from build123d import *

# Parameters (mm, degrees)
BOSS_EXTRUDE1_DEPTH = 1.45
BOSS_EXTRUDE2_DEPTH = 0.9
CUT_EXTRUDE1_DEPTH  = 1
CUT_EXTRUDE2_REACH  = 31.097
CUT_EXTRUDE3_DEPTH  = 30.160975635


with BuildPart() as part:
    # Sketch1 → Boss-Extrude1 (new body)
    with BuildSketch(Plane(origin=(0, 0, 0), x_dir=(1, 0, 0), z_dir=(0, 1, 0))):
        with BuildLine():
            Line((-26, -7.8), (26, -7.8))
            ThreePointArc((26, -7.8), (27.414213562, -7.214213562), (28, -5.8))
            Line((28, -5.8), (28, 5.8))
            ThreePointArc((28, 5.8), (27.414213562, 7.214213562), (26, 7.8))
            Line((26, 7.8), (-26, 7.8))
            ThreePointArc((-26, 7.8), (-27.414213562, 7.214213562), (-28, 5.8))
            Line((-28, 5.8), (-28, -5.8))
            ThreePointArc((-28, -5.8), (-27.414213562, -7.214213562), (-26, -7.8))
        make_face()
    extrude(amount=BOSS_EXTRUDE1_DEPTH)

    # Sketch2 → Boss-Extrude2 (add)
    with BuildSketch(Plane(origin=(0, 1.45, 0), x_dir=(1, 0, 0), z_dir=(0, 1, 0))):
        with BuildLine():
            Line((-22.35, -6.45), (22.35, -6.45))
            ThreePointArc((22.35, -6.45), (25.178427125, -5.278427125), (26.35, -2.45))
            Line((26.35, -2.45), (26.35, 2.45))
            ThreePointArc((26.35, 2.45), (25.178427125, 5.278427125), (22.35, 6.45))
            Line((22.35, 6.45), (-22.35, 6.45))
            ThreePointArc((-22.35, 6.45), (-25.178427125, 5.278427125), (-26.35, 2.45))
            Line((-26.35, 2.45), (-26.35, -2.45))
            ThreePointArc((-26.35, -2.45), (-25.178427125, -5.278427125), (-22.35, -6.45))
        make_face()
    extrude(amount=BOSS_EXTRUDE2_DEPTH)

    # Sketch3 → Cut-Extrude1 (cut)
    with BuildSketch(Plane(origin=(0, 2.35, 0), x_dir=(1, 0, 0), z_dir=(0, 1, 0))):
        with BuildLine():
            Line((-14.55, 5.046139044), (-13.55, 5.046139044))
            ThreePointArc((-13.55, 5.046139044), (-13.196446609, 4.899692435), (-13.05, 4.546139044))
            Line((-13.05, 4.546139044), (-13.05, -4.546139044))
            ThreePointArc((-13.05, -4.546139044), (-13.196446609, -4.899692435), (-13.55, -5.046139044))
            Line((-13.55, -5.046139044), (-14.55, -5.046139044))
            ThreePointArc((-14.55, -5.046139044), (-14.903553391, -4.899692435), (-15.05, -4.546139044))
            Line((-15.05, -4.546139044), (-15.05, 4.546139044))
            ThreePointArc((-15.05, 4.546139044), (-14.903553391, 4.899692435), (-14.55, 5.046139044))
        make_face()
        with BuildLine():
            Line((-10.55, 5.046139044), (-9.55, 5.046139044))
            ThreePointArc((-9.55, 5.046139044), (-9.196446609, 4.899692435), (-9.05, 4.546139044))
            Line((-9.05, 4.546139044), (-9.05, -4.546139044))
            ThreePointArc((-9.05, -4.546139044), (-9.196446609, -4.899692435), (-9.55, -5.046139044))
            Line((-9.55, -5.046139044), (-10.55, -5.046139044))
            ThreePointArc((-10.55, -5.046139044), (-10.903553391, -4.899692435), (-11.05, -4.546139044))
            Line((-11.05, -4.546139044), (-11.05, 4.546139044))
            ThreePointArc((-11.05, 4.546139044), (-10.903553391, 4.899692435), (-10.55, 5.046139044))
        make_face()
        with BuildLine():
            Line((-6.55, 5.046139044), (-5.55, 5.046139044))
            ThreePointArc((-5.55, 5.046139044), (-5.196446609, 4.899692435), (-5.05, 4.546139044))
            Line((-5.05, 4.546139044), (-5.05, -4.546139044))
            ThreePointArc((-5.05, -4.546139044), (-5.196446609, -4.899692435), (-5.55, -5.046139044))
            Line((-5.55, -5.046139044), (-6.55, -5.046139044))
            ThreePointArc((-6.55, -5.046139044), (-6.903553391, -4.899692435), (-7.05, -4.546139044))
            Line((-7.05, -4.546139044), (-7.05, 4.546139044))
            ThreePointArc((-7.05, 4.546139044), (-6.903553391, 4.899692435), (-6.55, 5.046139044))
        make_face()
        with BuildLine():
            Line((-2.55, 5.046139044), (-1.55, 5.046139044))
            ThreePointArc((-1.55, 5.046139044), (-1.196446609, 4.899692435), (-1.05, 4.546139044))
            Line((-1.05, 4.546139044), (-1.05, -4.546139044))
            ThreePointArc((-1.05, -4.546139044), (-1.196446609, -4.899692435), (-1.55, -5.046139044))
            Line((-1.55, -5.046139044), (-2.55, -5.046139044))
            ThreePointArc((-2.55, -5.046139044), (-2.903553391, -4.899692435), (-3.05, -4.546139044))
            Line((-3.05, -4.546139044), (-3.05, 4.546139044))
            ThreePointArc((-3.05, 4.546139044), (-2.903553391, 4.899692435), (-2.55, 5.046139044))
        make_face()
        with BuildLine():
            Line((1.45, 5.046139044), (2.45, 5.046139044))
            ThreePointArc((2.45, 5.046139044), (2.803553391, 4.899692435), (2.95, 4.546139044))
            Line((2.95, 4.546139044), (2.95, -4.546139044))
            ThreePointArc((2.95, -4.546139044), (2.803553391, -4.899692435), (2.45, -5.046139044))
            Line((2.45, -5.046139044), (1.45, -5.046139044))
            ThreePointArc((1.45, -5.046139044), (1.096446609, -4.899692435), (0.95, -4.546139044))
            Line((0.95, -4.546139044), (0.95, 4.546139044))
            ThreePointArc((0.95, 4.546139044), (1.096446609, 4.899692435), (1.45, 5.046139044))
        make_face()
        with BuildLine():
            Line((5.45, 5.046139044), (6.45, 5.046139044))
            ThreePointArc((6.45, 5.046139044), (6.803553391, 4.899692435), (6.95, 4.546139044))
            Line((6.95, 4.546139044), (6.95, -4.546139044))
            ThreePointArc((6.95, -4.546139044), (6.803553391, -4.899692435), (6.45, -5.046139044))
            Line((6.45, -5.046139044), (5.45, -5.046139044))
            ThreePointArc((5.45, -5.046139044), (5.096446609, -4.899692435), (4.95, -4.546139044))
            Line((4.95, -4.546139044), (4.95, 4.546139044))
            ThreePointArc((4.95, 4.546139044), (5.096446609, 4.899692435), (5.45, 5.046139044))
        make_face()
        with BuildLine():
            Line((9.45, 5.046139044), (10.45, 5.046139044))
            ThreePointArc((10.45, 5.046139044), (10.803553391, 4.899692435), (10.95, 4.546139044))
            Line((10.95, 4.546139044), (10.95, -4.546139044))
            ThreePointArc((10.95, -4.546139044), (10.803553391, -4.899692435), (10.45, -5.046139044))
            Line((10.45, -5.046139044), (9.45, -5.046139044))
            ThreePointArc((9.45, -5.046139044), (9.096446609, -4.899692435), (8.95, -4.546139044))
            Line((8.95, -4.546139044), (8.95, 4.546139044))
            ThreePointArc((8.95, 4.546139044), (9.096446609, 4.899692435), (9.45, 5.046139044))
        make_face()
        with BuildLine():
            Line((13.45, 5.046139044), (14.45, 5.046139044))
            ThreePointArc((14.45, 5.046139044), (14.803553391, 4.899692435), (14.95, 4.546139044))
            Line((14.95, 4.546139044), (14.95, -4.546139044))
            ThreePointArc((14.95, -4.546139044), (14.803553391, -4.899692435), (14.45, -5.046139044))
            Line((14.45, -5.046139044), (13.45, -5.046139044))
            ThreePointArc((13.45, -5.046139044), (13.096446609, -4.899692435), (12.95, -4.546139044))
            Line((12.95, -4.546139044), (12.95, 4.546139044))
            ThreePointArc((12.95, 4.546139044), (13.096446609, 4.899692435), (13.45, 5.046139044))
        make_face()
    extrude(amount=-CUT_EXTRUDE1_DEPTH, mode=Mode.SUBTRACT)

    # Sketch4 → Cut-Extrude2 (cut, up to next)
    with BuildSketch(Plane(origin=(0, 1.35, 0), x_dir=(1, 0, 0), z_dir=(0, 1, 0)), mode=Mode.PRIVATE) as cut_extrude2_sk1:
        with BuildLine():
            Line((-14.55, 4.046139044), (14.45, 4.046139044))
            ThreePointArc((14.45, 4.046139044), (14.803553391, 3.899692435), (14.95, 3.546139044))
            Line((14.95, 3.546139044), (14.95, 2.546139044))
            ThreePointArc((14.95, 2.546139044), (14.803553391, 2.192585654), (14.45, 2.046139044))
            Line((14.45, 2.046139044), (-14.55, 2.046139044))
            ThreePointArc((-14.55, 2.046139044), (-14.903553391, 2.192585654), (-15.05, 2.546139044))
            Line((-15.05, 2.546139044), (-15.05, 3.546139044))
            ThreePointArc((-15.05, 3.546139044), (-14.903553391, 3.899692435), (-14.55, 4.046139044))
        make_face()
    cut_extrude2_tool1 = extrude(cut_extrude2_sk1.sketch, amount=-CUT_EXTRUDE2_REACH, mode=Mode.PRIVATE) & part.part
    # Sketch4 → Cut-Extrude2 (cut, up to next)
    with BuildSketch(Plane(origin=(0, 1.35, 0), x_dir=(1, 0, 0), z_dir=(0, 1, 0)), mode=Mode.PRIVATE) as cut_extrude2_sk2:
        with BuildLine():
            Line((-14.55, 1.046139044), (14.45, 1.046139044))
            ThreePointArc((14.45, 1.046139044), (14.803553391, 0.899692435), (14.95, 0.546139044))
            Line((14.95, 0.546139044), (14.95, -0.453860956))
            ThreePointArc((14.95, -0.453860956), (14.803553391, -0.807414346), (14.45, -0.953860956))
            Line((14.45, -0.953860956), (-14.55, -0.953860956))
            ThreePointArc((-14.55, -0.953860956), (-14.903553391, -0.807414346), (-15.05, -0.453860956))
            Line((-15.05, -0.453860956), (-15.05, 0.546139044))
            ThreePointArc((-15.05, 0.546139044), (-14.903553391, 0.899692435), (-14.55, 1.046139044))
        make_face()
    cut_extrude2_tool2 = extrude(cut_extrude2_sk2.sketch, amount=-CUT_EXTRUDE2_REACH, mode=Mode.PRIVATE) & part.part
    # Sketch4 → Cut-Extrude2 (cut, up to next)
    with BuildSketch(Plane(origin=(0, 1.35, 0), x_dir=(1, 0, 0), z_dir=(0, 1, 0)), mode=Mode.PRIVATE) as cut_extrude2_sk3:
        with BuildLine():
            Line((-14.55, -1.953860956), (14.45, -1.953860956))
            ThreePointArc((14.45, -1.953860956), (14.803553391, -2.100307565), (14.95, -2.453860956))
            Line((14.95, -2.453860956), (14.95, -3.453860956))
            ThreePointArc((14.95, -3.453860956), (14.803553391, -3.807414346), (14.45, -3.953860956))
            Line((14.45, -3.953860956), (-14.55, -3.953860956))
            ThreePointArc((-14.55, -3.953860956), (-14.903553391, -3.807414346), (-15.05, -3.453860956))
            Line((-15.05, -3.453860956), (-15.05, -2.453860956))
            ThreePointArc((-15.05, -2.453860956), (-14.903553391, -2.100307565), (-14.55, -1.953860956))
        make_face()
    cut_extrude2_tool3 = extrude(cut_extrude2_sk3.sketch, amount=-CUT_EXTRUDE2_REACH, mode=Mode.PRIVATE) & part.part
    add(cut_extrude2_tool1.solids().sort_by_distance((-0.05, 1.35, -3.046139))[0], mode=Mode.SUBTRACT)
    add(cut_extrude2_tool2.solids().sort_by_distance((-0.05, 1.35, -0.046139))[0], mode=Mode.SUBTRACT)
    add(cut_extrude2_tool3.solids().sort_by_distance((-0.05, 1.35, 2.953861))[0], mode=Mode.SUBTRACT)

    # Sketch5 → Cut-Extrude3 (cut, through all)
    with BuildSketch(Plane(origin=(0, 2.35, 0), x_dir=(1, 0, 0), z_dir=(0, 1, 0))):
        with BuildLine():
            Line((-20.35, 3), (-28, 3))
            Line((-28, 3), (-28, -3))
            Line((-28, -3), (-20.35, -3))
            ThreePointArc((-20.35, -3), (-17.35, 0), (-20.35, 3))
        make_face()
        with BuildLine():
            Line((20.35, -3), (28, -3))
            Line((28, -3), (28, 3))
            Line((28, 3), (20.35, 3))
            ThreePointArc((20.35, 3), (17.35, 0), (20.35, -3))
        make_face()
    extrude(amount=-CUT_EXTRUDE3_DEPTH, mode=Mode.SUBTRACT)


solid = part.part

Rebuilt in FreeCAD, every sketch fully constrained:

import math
import FreeCAD as App
import Part
import Sketcher

V = App.Vector

doc = App.newDocument("Part")
body = doc.addObject("PartDesign::Body", "Body")

# Sketch on XZ plane
sketch1 = doc.addObject("Sketcher::SketchObject", "Sketch")
body.addObject(sketch1)
sketch1.AttachmentSupport = (doc.XZ_Plane, [""])
sketch1.MapMode = "FlatFace"
sketch1.addGeometry(Part.LineSegment(V(-26, 7.8, 0), V(26, 7.8, 0)), False)
sketch1.addGeometry(Part.ArcOfCircle(Part.Circle(V(26, 5.8, 0), V(0, 0, 1), 2), math.radians(0), math.radians(90)), False)
sketch1.addGeometry(Part.LineSegment(V(28, 5.8, 0), V(28, -5.8, 0)), False)
sketch1.addGeometry(Part.ArcOfCircle(Part.Circle(V(26, -5.8, 0), V(0, 0, 1), 2), math.radians(-90), math.radians(0)), False)
sketch1.addGeometry(Part.LineSegment(V(26, -7.8, 0), V(-26, -7.8, 0)), False)
sketch1.addGeometry(Part.ArcOfCircle(Part.Circle(V(-26, -5.8, 0), V(0, 0, 1), 2), math.radians(-180), math.radians(-90)), False)
sketch1.addGeometry(Part.LineSegment(V(-28, -5.8, 0), V(-28, 5.8, 0)), False)
sketch1.addGeometry(Part.ArcOfCircle(Part.Circle(V(-26, 5.8, 0), V(0, 0, 1), 2), math.radians(90), math.radians(180)), False)
sketch1.addConstraint(Sketcher.Constraint("Tangent", 0, 2, 1, 2))
sketch1.addConstraint(Sketcher.Constraint("Tangent", 1, 1, 2, 1))
sketch1.addConstraint(Sketcher.Constraint("Tangent", 2, 2, 3, 2))
sketch1.addConstraint(Sketcher.Constraint("Tangent", 3, 1, 4, 1))
sketch1.addConstraint(Sketcher.Constraint("Tangent", 4, 2, 5, 2))
sketch1.addConstraint(Sketcher.Constraint("Tangent", 5, 1, 6, 1))
sketch1.addConstraint(Sketcher.Constraint("Tangent", 6, 2, 7, 2))
sketch1.addConstraint(Sketcher.Constraint("Tangent", 7, 1, 0, 1))
sketch1.addConstraint(Sketcher.Constraint("Horizontal", 0))
sketch1.addConstraint(Sketcher.Constraint("Vertical", 2))
sketch1.addConstraint(Sketcher.Constraint("Horizontal", 4))
sketch1.addConstraint(Sketcher.Constraint("Vertical", 6))
sketch1.addConstraint(Sketcher.Constraint("Equal", 1, 3))
sketch1.addConstraint(Sketcher.Constraint("Equal", 3, 5))
sketch1.addConstraint(Sketcher.Constraint("Equal", 5, 7))
sketch1.addConstraint(Sketcher.Constraint("Symmetric", 1, 3, 5, 3, -1, 1))
sketch1.addConstraint(Sketcher.Constraint("Radius", 1, 2.0))
sketch1.addConstraint(Sketcher.Constraint("DistanceX", 0, 1, 0, 2, 52.0))
sketch1.addConstraint(Sketcher.Constraint("DistanceY", 2, 2, 2, 1, 11.6))
pad1 = doc.addObject("PartDesign::Pad", "Pad")
body.addObject(pad1)
pad1.Profile = sketch1
pad1.Length = 1.45
pad1.Reversed = True

# Sketch on XZ plane
sketch2 = doc.addObject("Sketcher::SketchObject", "Sketch001")
body.addObject(sketch2)
sketch2.AttachmentSupport = (doc.XZ_Plane, [""])
sketch2.MapMode = "FlatFace"
sketch2.AttachmentOffset = App.Placement(V(0, 0, -1.45), App.Rotation())
sketch2.addGeometry(Part.LineSegment(V(-22.35, 6.45, 0), V(22.35, 6.45, 0)), False)
sketch2.addGeometry(Part.ArcOfCircle(Part.Circle(V(22.35, 2.45, 0), V(0, 0, 1), 4), math.radians(0), math.radians(90)), False)
sketch2.addGeometry(Part.LineSegment(V(26.35, 2.45, 0), V(26.35, -2.45, 0)), False)
sketch2.addGeometry(Part.ArcOfCircle(Part.Circle(V(22.35, -2.45, 0), V(0, 0, 1), 4), math.radians(-90), math.radians(0)), False)
sketch2.addGeometry(Part.LineSegment(V(22.35, -6.45, 0), V(-22.35, -6.45, 0)), False)
sketch2.addGeometry(Part.ArcOfCircle(Part.Circle(V(-22.35, -2.45, 0), V(0, 0, 1), 4), math.radians(180), math.radians(270)), False)
sketch2.addGeometry(Part.LineSegment(V(-26.35, -2.45, 0), V(-26.35, 2.45, 0)), False)
sketch2.addGeometry(Part.ArcOfCircle(Part.Circle(V(-22.35, 2.45, 0), V(0, 0, 1), 4), math.radians(90), math.radians(180)), False)
sketch2.addConstraint(Sketcher.Constraint("Tangent", 0, 2, 1, 2))
sketch2.addConstraint(Sketcher.Constraint("Tangent", 1, 1, 2, 1))
sketch2.addConstraint(Sketcher.Constraint("Tangent", 2, 2, 3, 2))
sketch2.addConstraint(Sketcher.Constraint("Tangent", 3, 1, 4, 1))
sketch2.addConstraint(Sketcher.Constraint("Tangent", 4, 2, 5, 2))
sketch2.addConstraint(Sketcher.Constraint("Tangent", 5, 1, 6, 1))
sketch2.addConstraint(Sketcher.Constraint("Tangent", 6, 2, 7, 2))
sketch2.addConstraint(Sketcher.Constraint("Tangent", 7, 1, 0, 1))
sketch2.addConstraint(Sketcher.Constraint("Horizontal", 0))
sketch2.addConstraint(Sketcher.Constraint("Vertical", 2))
sketch2.addConstraint(Sketcher.Constraint("Horizontal", 4))
sketch2.addConstraint(Sketcher.Constraint("Vertical", 6))
sketch2.addConstraint(Sketcher.Constraint("Equal", 1, 3))
sketch2.addConstraint(Sketcher.Constraint("Equal", 3, 5))
sketch2.addConstraint(Sketcher.Constraint("Equal", 5, 7))
sketch2.addConstraint(Sketcher.Constraint("Symmetric", 1, 3, 5, 3, -1, 1))
sketch2.addConstraint(Sketcher.Constraint("Radius", 1, 4.0))
sketch2.addConstraint(Sketcher.Constraint("DistanceX", 0, 1, 0, 2, 44.7))
sketch2.addConstraint(Sketcher.Constraint("DistanceY", 2, 2, 2, 1, 4.9))
pad2 = doc.addObject("PartDesign::Pad", "Pad001")
body.addObject(pad2)
pad2.Profile = sketch2
pad2.Length = 0.9
pad2.Reversed = True

# Sketch on XZ plane
sketch3 = doc.addObject("Sketcher::SketchObject", "Sketch002")
body.addObject(sketch3)
sketch3.AttachmentSupport = (doc.XZ_Plane, [""])
sketch3.MapMode = "FlatFace"
sketch3.AttachmentOffset = App.Placement(V(0, 0, -2.35), App.Rotation())
sketch3.addGeometry(Part.LineSegment(V(-13.55, -5.046139, 0), V(-14.55, -5.046139, 0)), False)
sketch3.addGeometry(Part.ArcOfCircle(Part.Circle(V(-14.55, -4.546139, 0), V(0, 0, 1), 0.5), math.radians(180), math.radians(270)), False)
sketch3.addGeometry(Part.LineSegment(V(-15.05, -4.546139, 0), V(-15.05, 4.546139, 0)), False)
sketch3.addGeometry(Part.ArcOfCircle(Part.Circle(V(-14.55, 4.546139, 0), V(0, 0, 1), 0.5), math.radians(90), math.radians(180)), False)
sketch3.addGeometry(Part.LineSegment(V(-14.55, 5.046139, 0), V(-13.55, 5.046139, 0)), False)
sketch3.addGeometry(Part.ArcOfCircle(Part.Circle(V(-13.55, 4.546139, 0), V(0, 0, 1), 0.5), math.radians(0), math.radians(90)), False)
sketch3.addGeometry(Part.LineSegment(V(-13.05, 4.546139, 0), V(-13.05, -4.546139, 0)), False)
sketch3.addGeometry(Part.ArcOfCircle(Part.Circle(V(-13.55, -4.546139, 0), V(0, 0, 1), 0.5), math.radians(-90), math.radians(0)), False)
sketch3.addGeometry(Part.LineSegment(V(-9.55, -5.046139, 0), V(-10.55, -5.046139, 0)), False)
sketch3.addGeometry(Part.ArcOfCircle(Part.Circle(V(-10.55, -4.546139, 0), V(0, 0, 1), 0.5), math.radians(180), math.radians(270)), False)
sketch3.addGeometry(Part.LineSegment(V(-11.05, -4.546139, 0), V(-11.05, 4.546139, 0)), False)
sketch3.addGeometry(Part.ArcOfCircle(Part.Circle(V(-10.55, 4.546139, 0), V(0, 0, 1), 0.5), math.radians(90), math.radians(180)), False)
sketch3.addGeometry(Part.LineSegment(V(-10.55, 5.046139, 0), V(-9.55, 5.046139, 0)), False)
sketch3.addGeometry(Part.ArcOfCircle(Part.Circle(V(-9.55, 4.546139, 0), V(0, 0, 1), 0.5), math.radians(0), math.radians(90)), False)
sketch3.addGeometry(Part.LineSegment(V(-9.05, 4.546139, 0), V(-9.05, -4.546139, 0)), False)
sketch3.addGeometry(Part.ArcOfCircle(Part.Circle(V(-9.55, -4.546139, 0), V(0, 0, 1), 0.5), math.radians(-90), math.radians(0)), False)
sketch3.addGeometry(Part.LineSegment(V(-5.55, -5.046139, 0), V(-6.55, -5.046139, 0)), False)
sketch3.addGeometry(Part.ArcOfCircle(Part.Circle(V(-6.55, -4.546139, 0), V(0, 0, 1), 0.5), math.radians(180), math.radians(270)), False)
sketch3.addGeometry(Part.LineSegment(V(-7.05, -4.546139, 0), V(-7.05, 4.546139, 0)), False)
sketch3.addGeometry(Part.ArcOfCircle(Part.Circle(V(-6.55, 4.546139, 0), V(0, 0, 1), 0.5), math.radians(90), math.radians(180)), False)
sketch3.addGeometry(Part.LineSegment(V(-6.55, 5.046139, 0), V(-5.55, 5.046139, 0)), False)
sketch3.addGeometry(Part.ArcOfCircle(Part.Circle(V(-5.55, 4.546139, 0), V(0, 0, 1), 0.5), math.radians(0), math.radians(90)), False)
sketch3.addGeometry(Part.LineSegment(V(-5.05, 4.546139, 0), V(-5.05, -4.546139, 0)), False)
sketch3.addGeometry(Part.ArcOfCircle(Part.Circle(V(-5.55, -4.546139, 0), V(0, 0, 1), 0.5), math.radians(-90), math.radians(0)), False)
sketch3.addGeometry(Part.LineSegment(V(-1.55, -5.046139, 0), V(-2.55, -5.046139, 0)), False)
sketch3.addGeometry(Part.ArcOfCircle(Part.Circle(V(-2.55, -4.546139, 0), V(0, 0, 1), 0.5), math.radians(180), math.radians(270)), False)
sketch3.addGeometry(Part.LineSegment(V(-3.05, -4.546139, 0), V(-3.05, 4.546139, 0)), False)
sketch3.addGeometry(Part.ArcOfCircle(Part.Circle(V(-2.55, 4.546139, 0), V(0, 0, 1), 0.5), math.radians(90), math.radians(180)), False)
sketch3.addGeometry(Part.LineSegment(V(-2.55, 5.046139, 0), V(-1.55, 5.046139, 0)), False)
sketch3.addGeometry(Part.ArcOfCircle(Part.Circle(V(-1.55, 4.546139, 0), V(0, 0, 1), 0.5), math.radians(0), math.radians(90)), False)
sketch3.addGeometry(Part.LineSegment(V(-1.05, 4.546139, 0), V(-1.05, -4.546139, 0)), False)
sketch3.addGeometry(Part.ArcOfCircle(Part.Circle(V(-1.55, -4.546139, 0), V(0, 0, 1), 0.5), math.radians(-90), math.radians(0)), False)
sketch3.addGeometry(Part.LineSegment(V(2.45, -5.046139, 0), V(1.45, -5.046139, 0)), False)
sketch3.addGeometry(Part.ArcOfCircle(Part.Circle(V(1.45, -4.546139, 0), V(0, 0, 1), 0.5), math.radians(180), math.radians(270)), False)
sketch3.addGeometry(Part.LineSegment(V(0.95, -4.546139, 0), V(0.95, 4.546139, 0)), False)
sketch3.addGeometry(Part.ArcOfCircle(Part.Circle(V(1.45, 4.546139, 0), V(0, 0, 1), 0.5), math.radians(90), math.radians(180)), False)
sketch3.addGeometry(Part.LineSegment(V(1.45, 5.046139, 0), V(2.45, 5.046139, 0)), False)
sketch3.addGeometry(Part.ArcOfCircle(Part.Circle(V(2.45, 4.546139, 0), V(0, 0, 1), 0.5), math.radians(0), math.radians(90)), False)
sketch3.addGeometry(Part.LineSegment(V(2.95, 4.546139, 0), V(2.95, -4.546139, 0)), False)
sketch3.addGeometry(Part.ArcOfCircle(Part.Circle(V(2.45, -4.546139, 0), V(0, 0, 1), 0.5), math.radians(-90), math.radians(0)), False)
sketch3.addGeometry(Part.LineSegment(V(6.45, -5.046139, 0), V(5.45, -5.046139, 0)), False)
sketch3.addGeometry(Part.ArcOfCircle(Part.Circle(V(5.45, -4.546139, 0), V(0, 0, 1), 0.5), math.radians(180), math.radians(270)), False)
sketch3.addGeometry(Part.LineSegment(V(4.95, -4.546139, 0), V(4.95, 4.546139, 0)), False)
sketch3.addGeometry(Part.ArcOfCircle(Part.Circle(V(5.45, 4.546139, 0), V(0, 0, 1), 0.5), math.radians(90), math.radians(180)), False)
sketch3.addGeometry(Part.LineSegment(V(5.45, 5.046139, 0), V(6.45, 5.046139, 0)), False)
sketch3.addGeometry(Part.ArcOfCircle(Part.Circle(V(6.45, 4.546139, 0), V(0, 0, 1), 0.5), math.radians(0), math.radians(90)), False)
sketch3.addGeometry(Part.LineSegment(V(6.95, 4.546139, 0), V(6.95, -4.546139, 0)), False)
sketch3.addGeometry(Part.ArcOfCircle(Part.Circle(V(6.45, -4.546139, 0), V(0, 0, 1), 0.5), math.radians(-90), math.radians(0)), False)
sketch3.addGeometry(Part.LineSegment(V(10.45, -5.046139, 0), V(9.45, -5.046139, 0)), False)
sketch3.addGeometry(Part.ArcOfCircle(Part.Circle(V(9.45, -4.546139, 0), V(0, 0, 1), 0.5), math.radians(180), math.radians(270)), False)
sketch3.addGeometry(Part.LineSegment(V(8.95, -4.546139, 0), V(8.95, 4.546139, 0)), False)
sketch3.addGeometry(Part.ArcOfCircle(Part.Circle(V(9.45, 4.546139, 0), V(0, 0, 1), 0.5), math.radians(90), math.radians(180)), False)
sketch3.addGeometry(Part.LineSegment(V(9.45, 5.046139, 0), V(10.45, 5.046139, 0)), False)
sketch3.addGeometry(Part.ArcOfCircle(Part.Circle(V(10.45, 4.546139, 0), V(0, 0, 1), 0.5), math.radians(0), math.radians(90)), False)
sketch3.addGeometry(Part.LineSegment(V(10.95, 4.546139, 0), V(10.95, -4.546139, 0)), False)
sketch3.addGeometry(Part.ArcOfCircle(Part.Circle(V(10.45, -4.546139, 0), V(0, 0, 1), 0.5), math.radians(-90), math.radians(0)), False)
sketch3.addGeometry(Part.LineSegment(V(14.45, -5.046139, 0), V(13.45, -5.046139, 0)), False)
sketch3.addGeometry(Part.ArcOfCircle(Part.Circle(V(13.45, -4.546139, 0), V(0, 0, 1), 0.5), math.radians(180), math.radians(270)), False)
sketch3.addGeometry(Part.LineSegment(V(12.95, -4.546139, 0), V(12.95, 4.546139, 0)), False)
sketch3.addGeometry(Part.ArcOfCircle(Part.Circle(V(13.45, 4.546139, 0), V(0, 0, 1), 0.5), math.radians(90), math.radians(180)), False)
sketch3.addGeometry(Part.LineSegment(V(13.45, 5.046139, 0), V(14.45, 5.046139, 0)), False)
sketch3.addGeometry(Part.ArcOfCircle(Part.Circle(V(14.45, 4.546139, 0), V(0, 0, 1), 0.5), math.radians(0), math.radians(90)), False)
sketch3.addGeometry(Part.LineSegment(V(14.95, 4.546139, 0), V(14.95, -4.546139, 0)), False)
sketch3.addGeometry(Part.ArcOfCircle(Part.Circle(V(14.45, -4.546139, 0), V(0, 0, 1), 0.5), math.radians(-90), math.radians(0)), False)
sketch3.addConstraint(Sketcher.Constraint("Tangent", 0, 2, 1, 2))
sketch3.addConstraint(Sketcher.Constraint("Tangent", 1, 1, 2, 1))
sketch3.addConstraint(Sketcher.Constraint("Tangent", 2, 2, 3, 2))
sketch3.addConstraint(Sketcher.Constraint("Tangent", 3, 1, 4, 1))
sketch3.addConstraint(Sketcher.Constraint("Tangent", 4, 2, 5, 2))
sketch3.addConstraint(Sketcher.Constraint("Tangent", 5, 1, 6, 1))
sketch3.addConstraint(Sketcher.Constraint("Tangent", 6, 2, 7, 2))
sketch3.addConstraint(Sketcher.Constraint("Tangent", 7, 1, 0, 1))
sketch3.addConstraint(Sketcher.Constraint("Tangent", 8, 2, 9, 2))
sketch3.addConstraint(Sketcher.Constraint("Tangent", 9, 1, 10, 1))
sketch3.addConstraint(Sketcher.Constraint("Tangent", 10, 2, 11, 2))
sketch3.addConstraint(Sketcher.Constraint("Tangent", 11, 1, 12, 1))
sketch3.addConstraint(Sketcher.Constraint("Tangent", 12, 2, 13, 2))
sketch3.addConstraint(Sketcher.Constraint("Tangent", 13, 1, 14, 1))
sketch3.addConstraint(Sketcher.Constraint("Tangent", 14, 2, 15, 2))
sketch3.addConstraint(Sketcher.Constraint("Tangent", 15, 1, 8, 1))
sketch3.addConstraint(Sketcher.Constraint("Tangent", 16, 2, 17, 2))
sketch3.addConstraint(Sketcher.Constraint("Tangent", 17, 1, 18, 1))
sketch3.addConstraint(Sketcher.Constraint("Tangent", 18, 2, 19, 2))
sketch3.addConstraint(Sketcher.Constraint("Tangent", 19, 1, 20, 1))
sketch3.addConstraint(Sketcher.Constraint("Tangent", 20, 2, 21, 2))
sketch3.addConstraint(Sketcher.Constraint("Tangent", 21, 1, 22, 1))
sketch3.addConstraint(Sketcher.Constraint("Tangent", 22, 2, 23, 2))
sketch3.addConstraint(Sketcher.Constraint("Tangent", 23, 1, 16, 1))
sketch3.addConstraint(Sketcher.Constraint("Tangent", 24, 2, 25, 2))
sketch3.addConstraint(Sketcher.Constraint("Tangent", 25, 1, 26, 1))
sketch3.addConstraint(Sketcher.Constraint("Tangent", 26, 2, 27, 2))
sketch3.addConstraint(Sketcher.Constraint("Tangent", 27, 1, 28, 1))
sketch3.addConstraint(Sketcher.Constraint("Tangent", 28, 2, 29, 2))
sketch3.addConstraint(Sketcher.Constraint("Tangent", 29, 1, 30, 1))
sketch3.addConstraint(Sketcher.Constraint("Tangent", 30, 2, 31, 2))
sketch3.addConstraint(Sketcher.Constraint("Tangent", 31, 1, 24, 1))
sketch3.addConstraint(Sketcher.Constraint("Tangent", 32, 2, 33, 2))
sketch3.addConstraint(Sketcher.Constraint("Tangent", 33, 1, 34, 1))
sketch3.addConstraint(Sketcher.Constraint("Tangent", 34, 2, 35, 2))
sketch3.addConstraint(Sketcher.Constraint("Tangent", 35, 1, 36, 1))
sketch3.addConstraint(Sketcher.Constraint("Tangent", 36, 2, 37, 2))
sketch3.addConstraint(Sketcher.Constraint("Tangent", 37, 1, 38, 1))
sketch3.addConstraint(Sketcher.Constraint("Tangent", 38, 2, 39, 2))
sketch3.addConstraint(Sketcher.Constraint("Tangent", 39, 1, 32, 1))
sketch3.addConstraint(Sketcher.Constraint("Tangent", 40, 2, 41, 2))
sketch3.addConstraint(Sketcher.Constraint("Tangent", 41, 1, 42, 1))
sketch3.addConstraint(Sketcher.Constraint("Tangent", 42, 2, 43, 2))
sketch3.addConstraint(Sketcher.Constraint("Tangent", 43, 1, 44, 1))
sketch3.addConstraint(Sketcher.Constraint("Tangent", 44, 2, 45, 2))
sketch3.addConstraint(Sketcher.Constraint("Tangent", 45, 1, 46, 1))
sketch3.addConstraint(Sketcher.Constraint("Tangent", 46, 2, 47, 2))
sketch3.addConstraint(Sketcher.Constraint("Tangent", 47, 1, 40, 1))
sketch3.addConstraint(Sketcher.Constraint("Tangent", 48, 2, 49, 2))
sketch3.addConstraint(Sketcher.Constraint("Tangent", 49, 1, 50, 1))
sketch3.addConstraint(Sketcher.Constraint("Tangent", 50, 2, 51, 2))
sketch3.addConstraint(Sketcher.Constraint("Tangent", 51, 1, 52, 1))
sketch3.addConstraint(Sketcher.Constraint("Tangent", 52, 2, 53, 2))
sketch3.addConstraint(Sketcher.Constraint("Tangent", 53, 1, 54, 1))
sketch3.addConstraint(Sketcher.Constraint("Tangent", 54, 2, 55, 2))
sketch3.addConstraint(Sketcher.Constraint("Tangent", 55, 1, 48, 1))
sketch3.addConstraint(Sketcher.Constraint("Tangent", 56, 2, 57, 2))
sketch3.addConstraint(Sketcher.Constraint("Tangent", 57, 1, 58, 1))
sketch3.addConstraint(Sketcher.Constraint("Tangent", 58, 2, 59, 2))
sketch3.addConstraint(Sketcher.Constraint("Tangent", 59, 1, 60, 1))
sketch3.addConstraint(Sketcher.Constraint("Tangent", 60, 2, 61, 2))
sketch3.addConstraint(Sketcher.Constraint("Tangent", 61, 1, 62, 1))
sketch3.addConstraint(Sketcher.Constraint("Tangent", 62, 2, 63, 2))
sketch3.addConstraint(Sketcher.Constraint("Tangent", 63, 1, 56, 1))
sketch3.addConstraint(Sketcher.Constraint("Horizontal", 0))
sketch3.addConstraint(Sketcher.Constraint("Vertical", 2))
sketch3.addConstraint(Sketcher.Constraint("Horizontal", 4))
sketch3.addConstraint(Sketcher.Constraint("Vertical", 6))
sketch3.addConstraint(Sketcher.Constraint("Horizontal", 8))
sketch3.addConstraint(Sketcher.Constraint("Vertical", 10))
sketch3.addConstraint(Sketcher.Constraint("Horizontal", 12))
sketch3.addConstraint(Sketcher.Constraint("Vertical", 14))
sketch3.addConstraint(Sketcher.Constraint("Horizontal", 16))
sketch3.addConstraint(Sketcher.Constraint("Vertical", 18))
sketch3.addConstraint(Sketcher.Constraint("Horizontal", 20))
sketch3.addConstraint(Sketcher.Constraint("Vertical", 22))
sketch3.addConstraint(Sketcher.Constraint("Horizontal", 24))
sketch3.addConstraint(Sketcher.Constraint("Vertical", 26))
sketch3.addConstraint(Sketcher.Constraint("Horizontal", 28))
sketch3.addConstraint(Sketcher.Constraint("Vertical", 30))
sketch3.addConstraint(Sketcher.Constraint("Horizontal", 32))
sketch3.addConstraint(Sketcher.Constraint("Vertical", 34))
sketch3.addConstraint(Sketcher.Constraint("Horizontal", 36))
sketch3.addConstraint(Sketcher.Constraint("Vertical", 38))
sketch3.addConstraint(Sketcher.Constraint("Horizontal", 40))
sketch3.addConstraint(Sketcher.Constraint("Vertical", 42))
sketch3.addConstraint(Sketcher.Constraint("Horizontal", 44))
sketch3.addConstraint(Sketcher.Constraint("Vertical", 46))
sketch3.addConstraint(Sketcher.Constraint("Horizontal", 48))
sketch3.addConstraint(Sketcher.Constraint("Vertical", 50))
sketch3.addConstraint(Sketcher.Constraint("Horizontal", 52))
sketch3.addConstraint(Sketcher.Constraint("Vertical", 54))
sketch3.addConstraint(Sketcher.Constraint("Horizontal", 56))
sketch3.addConstraint(Sketcher.Constraint("Vertical", 58))
sketch3.addConstraint(Sketcher.Constraint("Horizontal", 60))
sketch3.addConstraint(Sketcher.Constraint("Vertical", 62))
sketch3.addConstraint(Sketcher.Constraint("Equal", 1, 3))
sketch3.addConstraint(Sketcher.Constraint("Equal", 3, 5))
sketch3.addConstraint(Sketcher.Constraint("Equal", 5, 7))
sketch3.addConstraint(Sketcher.Constraint("Equal", 7, 9))
sketch3.addConstraint(Sketcher.Constraint("Equal", 9, 11))
sketch3.addConstraint(Sketcher.Constraint("Equal", 11, 13))
sketch3.addConstraint(Sketcher.Constraint("Equal", 13, 15))
sketch3.addConstraint(Sketcher.Constraint("Equal", 15, 17))
sketch3.addConstraint(Sketcher.Constraint("Equal", 17, 19))
sketch3.addConstraint(Sketcher.Constraint("Equal", 19, 21))
sketch3.addConstraint(Sketcher.Constraint("Equal", 21, 23))
sketch3.addConstraint(Sketcher.Constraint("Equal", 23, 25))
sketch3.addConstraint(Sketcher.Constraint("Equal", 25, 27))
sketch3.addConstraint(Sketcher.Constraint("Equal", 27, 29))
sketch3.addConstraint(Sketcher.Constraint("Equal", 29, 31))
sketch3.addConstraint(Sketcher.Constraint("Equal", 31, 33))
sketch3.addConstraint(Sketcher.Constraint("Equal", 33, 35))
sketch3.addConstraint(Sketcher.Constraint("Equal", 35, 37))
sketch3.addConstraint(Sketcher.Constraint("Equal", 37, 39))
sketch3.addConstraint(Sketcher.Constraint("Equal", 39, 41))
sketch3.addConstraint(Sketcher.Constraint("Equal", 41, 43))
sketch3.addConstraint(Sketcher.Constraint("Equal", 43, 45))
sketch3.addConstraint(Sketcher.Constraint("Equal", 45, 47))
sketch3.addConstraint(Sketcher.Constraint("Equal", 47, 49))
sketch3.addConstraint(Sketcher.Constraint("Equal", 49, 51))
sketch3.addConstraint(Sketcher.Constraint("Equal", 51, 53))
sketch3.addConstraint(Sketcher.Constraint("Equal", 53, 55))
sketch3.addConstraint(Sketcher.Constraint("Equal", 55, 57))
sketch3.addConstraint(Sketcher.Constraint("Equal", 57, 59))
sketch3.addConstraint(Sketcher.Constraint("Equal", 59, 61))
sketch3.addConstraint(Sketcher.Constraint("Equal", 61, 63))
sketch3.addConstraint(Sketcher.Constraint("Horizontal", 7, 3, 9, 3))
sketch3.addConstraint(Sketcher.Constraint("Horizontal", 5, 3, 11, 3))
sketch3.addConstraint(Sketcher.Constraint("Horizontal", 15, 3, 17, 3))
sketch3.addConstraint(Sketcher.Constraint("Horizontal", 13, 3, 19, 3))
sketch3.addConstraint(Sketcher.Constraint("Horizontal", 23, 3, 25, 3))
sketch3.addConstraint(Sketcher.Constraint("Horizontal", 21, 3, 27, 3))
sketch3.addConstraint(Sketcher.Constraint("Horizontal", 31, 3, 33, 3))
sketch3.addConstraint(Sketcher.Constraint("Horizontal", 29, 3, 35, 3))
sketch3.addConstraint(Sketcher.Constraint("Horizontal", 39, 3, 41, 3))
sketch3.addConstraint(Sketcher.Constraint("Horizontal", 37, 3, 43, 3))
sketch3.addConstraint(Sketcher.Constraint("Horizontal", 47, 3, 49, 3))
sketch3.addConstraint(Sketcher.Constraint("Horizontal", 45, 3, 51, 3))
sketch3.addConstraint(Sketcher.Constraint("Horizontal", 55, 3, 57, 3))
sketch3.addConstraint(Sketcher.Constraint("Horizontal", 53, 3, 59, 3))
sketch3.addConstraint(Sketcher.Constraint("Equal", 4, 8))
sketch3.addConstraint(Sketcher.Constraint("Equal", 12, 16))
sketch3.addConstraint(Sketcher.Constraint("Equal", 20, 24))
sketch3.addConstraint(Sketcher.Constraint("Equal", 28, 32))
sketch3.addConstraint(Sketcher.Constraint("Equal", 36, 40))
sketch3.addConstraint(Sketcher.Constraint("Equal", 44, 48))
sketch3.addConstraint(Sketcher.Constraint("Equal", 52, 56))
sketch3.addConstraint(Sketcher.Constraint("Radius", 1, 0.5))
sketch3.addConstraint(Sketcher.Constraint("DistanceX", 0, 2, 0, 1, 1.0))
sketch3.addConstraint(Sketcher.Constraint("DistanceX", 1, 3, -1, 1, 14.55))
sketch3.addConstraint(Sketcher.Constraint("DistanceX", 9, 3, -1, 1, 10.55))
sketch3.addConstraint(Sketcher.Constraint("DistanceX", 17, 3, -1, 1, 6.55))
sketch3.addConstraint(Sketcher.Constraint("DistanceX", 25, 3, -1, 1, 2.55))
sketch3.addConstraint(Sketcher.Constraint("DistanceX", -1, 1, 33, 3, 1.45))
sketch3.addConstraint(Sketcher.Constraint("DistanceX", -1, 1, 41, 3, 5.45))
sketch3.addConstraint(Sketcher.Constraint("DistanceX", -1, 1, 49, 3, 9.45))
sketch3.addConstraint(Sketcher.Constraint("DistanceX", -1, 1, 57, 3, 13.45))
sketch3.addConstraint(Sketcher.Constraint("DistanceY", 2, 1, 2, 2, 9.092278))
sketch3.addConstraint(Sketcher.Constraint("DistanceY", 1, 3, -1, 1, 4.546139))
pocket1 = doc.addObject("PartDesign::Pocket", "Pocket")
body.addObject(pocket1)
pocket1.Profile = sketch3
pocket1.Length = 1
pocket1.Reversed = True

# Sketch on XZ plane
sketch4 = doc.addObject("Sketcher::SketchObject", "Sketch003")
body.addObject(sketch4)
sketch4.AttachmentSupport = (doc.XZ_Plane, [""])
sketch4.MapMode = "FlatFace"
sketch4.AttachmentOffset = App.Placement(V(0, 0, -1.35), App.Rotation())
sketch4.addGeometry(Part.LineSegment(V(14.45, -4.046139, 0), V(-14.55, -4.046139, 0)), False)
sketch4.addGeometry(Part.ArcOfCircle(Part.Circle(V(-14.55, -3.546139, 0), V(0, 0, 1), 0.5), math.radians(180), math.radians(270)), False)
sketch4.addGeometry(Part.LineSegment(V(-15.05, -3.546139, 0), V(-15.05, -2.546139, 0)), False)
sketch4.addGeometry(Part.ArcOfCircle(Part.Circle(V(-14.55, -2.546139, 0), V(0, 0, 1), 0.5), math.radians(90), math.radians(180)), False)
sketch4.addGeometry(Part.LineSegment(V(-14.55, -2.046139, 0), V(14.45, -2.046139, 0)), False)
sketch4.addGeometry(Part.ArcOfCircle(Part.Circle(V(14.45, -2.546139, 0), V(0, 0, 1), 0.5), math.radians(0), math.radians(90)), False)
sketch4.addGeometry(Part.LineSegment(V(14.95, -2.546139, 0), V(14.95, -3.546139, 0)), False)
sketch4.addGeometry(Part.ArcOfCircle(Part.Circle(V(14.45, -3.546139, 0), V(0, 0, 1), 0.5), math.radians(-90), math.radians(0)), False)
sketch4.addConstraint(Sketcher.Constraint("Tangent", 0, 2, 1, 2))
sketch4.addConstraint(Sketcher.Constraint("Tangent", 1, 1, 2, 1))
sketch4.addConstraint(Sketcher.Constraint("Tangent", 2, 2, 3, 2))
sketch4.addConstraint(Sketcher.Constraint("Tangent", 3, 1, 4, 1))
sketch4.addConstraint(Sketcher.Constraint("Tangent", 4, 2, 5, 2))
sketch4.addConstraint(Sketcher.Constraint("Tangent", 5, 1, 6, 1))
sketch4.addConstraint(Sketcher.Constraint("Tangent", 6, 2, 7, 2))
sketch4.addConstraint(Sketcher.Constraint("Tangent", 7, 1, 0, 1))
sketch4.addConstraint(Sketcher.Constraint("Horizontal", 0))
sketch4.addConstraint(Sketcher.Constraint("Vertical", 2))
sketch4.addConstraint(Sketcher.Constraint("Horizontal", 4))
sketch4.addConstraint(Sketcher.Constraint("Vertical", 6))
sketch4.addConstraint(Sketcher.Constraint("Equal", 1, 3))
sketch4.addConstraint(Sketcher.Constraint("Equal", 3, 5))
sketch4.addConstraint(Sketcher.Constraint("Equal", 5, 7))
sketch4.addConstraint(Sketcher.Constraint("Radius", 1, 0.5))
sketch4.addConstraint(Sketcher.Constraint("DistanceX", 0, 2, 0, 1, 29.0))
sketch4.addConstraint(Sketcher.Constraint("DistanceY", 2, 1, 2, 2, 1.0))
sketch4.addConstraint(Sketcher.Constraint("DistanceX", 1, 3, -1, 1, 14.55))
sketch4.addConstraint(Sketcher.Constraint("DistanceY", 1, 3, -1, 1, 3.546139))
pocket2 = doc.addObject("PartDesign::Pocket", "Pocket001")
body.addObject(pocket2)
pocket2.Profile = sketch4
pocket2.Type = "UpToFirst"
pocket2.Reversed = True

# Sketch on XZ plane
sketch5 = doc.addObject("Sketcher::SketchObject", "Sketch004")
body.addObject(sketch5)
sketch5.AttachmentSupport = (doc.XZ_Plane, [""])
sketch5.MapMode = "FlatFace"
sketch5.AttachmentOffset = App.Placement(V(0, 0, -1.35), App.Rotation())
sketch5.addGeometry(Part.LineSegment(V(14.45, -1.046139, 0), V(-14.55, -1.046139, 0)), False)
sketch5.addGeometry(Part.ArcOfCircle(Part.Circle(V(-14.55, -0.546139, 0), V(0, 0, 1), 0.5), math.radians(180), math.radians(270)), False)
sketch5.addGeometry(Part.LineSegment(V(-15.05, -0.546139, 0), V(-15.05, 0.453861, 0)), False)
sketch5.addGeometry(Part.ArcOfCircle(Part.Circle(V(-14.55, 0.453861, 0), V(0, 0, 1), 0.5), math.radians(90), math.radians(180)), False)
sketch5.addGeometry(Part.LineSegment(V(-14.55, 0.953861, 0), V(14.45, 0.953861, 0)), False)
sketch5.addGeometry(Part.ArcOfCircle(Part.Circle(V(14.45, 0.453861, 0), V(0, 0, 1), 0.5), math.radians(0), math.radians(90)), False)
sketch5.addGeometry(Part.LineSegment(V(14.95, 0.453861, 0), V(14.95, -0.546139, 0)), False)
sketch5.addGeometry(Part.ArcOfCircle(Part.Circle(V(14.45, -0.546139, 0), V(0, 0, 1), 0.5), math.radians(-90), math.radians(0)), False)
sketch5.addConstraint(Sketcher.Constraint("Tangent", 0, 2, 1, 2))
sketch5.addConstraint(Sketcher.Constraint("Tangent", 1, 1, 2, 1))
sketch5.addConstraint(Sketcher.Constraint("Tangent", 2, 2, 3, 2))
sketch5.addConstraint(Sketcher.Constraint("Tangent", 3, 1, 4, 1))
sketch5.addConstraint(Sketcher.Constraint("Tangent", 4, 2, 5, 2))
sketch5.addConstraint(Sketcher.Constraint("Tangent", 5, 1, 6, 1))
sketch5.addConstraint(Sketcher.Constraint("Tangent", 6, 2, 7, 2))
sketch5.addConstraint(Sketcher.Constraint("Tangent", 7, 1, 0, 1))
sketch5.addConstraint(Sketcher.Constraint("Horizontal", 0))
sketch5.addConstraint(Sketcher.Constraint("Vertical", 2))
sketch5.addConstraint(Sketcher.Constraint("Horizontal", 4))
sketch5.addConstraint(Sketcher.Constraint("Vertical", 6))
sketch5.addConstraint(Sketcher.Constraint("Equal", 1, 3))
sketch5.addConstraint(Sketcher.Constraint("Equal", 3, 5))
sketch5.addConstraint(Sketcher.Constraint("Equal", 5, 7))
sketch5.addConstraint(Sketcher.Constraint("Radius", 1, 0.5))
sketch5.addConstraint(Sketcher.Constraint("DistanceX", 0, 2, 0, 1, 29.0))
sketch5.addConstraint(Sketcher.Constraint("DistanceY", 2, 1, 2, 2, 1.0))
sketch5.addConstraint(Sketcher.Constraint("DistanceX", 1, 3, -1, 1, 14.55))
sketch5.addConstraint(Sketcher.Constraint("DistanceY", 1, 3, -1, 1, 0.546139))
pocket3 = doc.addObject("PartDesign::Pocket", "Pocket002")
body.addObject(pocket3)
pocket3.Profile = sketch5
pocket3.Type = "UpToFirst"
pocket3.Reversed = True

# Sketch on XZ plane
sketch6 = doc.addObject("Sketcher::SketchObject", "Sketch005")
body.addObject(sketch6)
sketch6.AttachmentSupport = (doc.XZ_Plane, [""])
sketch6.MapMode = "FlatFace"
sketch6.AttachmentOffset = App.Placement(V(0, 0, -1.35), App.Rotation())
sketch6.addGeometry(Part.LineSegment(V(14.45, 1.953861, 0), V(-14.55, 1.953861, 0)), False)
sketch6.addGeometry(Part.ArcOfCircle(Part.Circle(V(-14.55, 2.453861, 0), V(0, 0, 1), 0.5), math.radians(180), math.radians(270)), False)
sketch6.addGeometry(Part.LineSegment(V(-15.05, 2.453861, 0), V(-15.05, 3.453861, 0)), False)
sketch6.addGeometry(Part.ArcOfCircle(Part.Circle(V(-14.55, 3.453861, 0), V(0, 0, 1), 0.5), math.radians(90), math.radians(180)), False)
sketch6.addGeometry(Part.LineSegment(V(-14.55, 3.953861, 0), V(14.45, 3.953861, 0)), False)
sketch6.addGeometry(Part.ArcOfCircle(Part.Circle(V(14.45, 3.453861, 0), V(0, 0, 1), 0.5), math.radians(0), math.radians(90)), False)
sketch6.addGeometry(Part.LineSegment(V(14.95, 3.453861, 0), V(14.95, 2.453861, 0)), False)
sketch6.addGeometry(Part.ArcOfCircle(Part.Circle(V(14.45, 2.453861, 0), V(0, 0, 1), 0.5), math.radians(-90), math.radians(0)), False)
sketch6.addConstraint(Sketcher.Constraint("Tangent", 0, 2, 1, 2))
sketch6.addConstraint(Sketcher.Constraint("Tangent", 1, 1, 2, 1))
sketch6.addConstraint(Sketcher.Constraint("Tangent", 2, 2, 3, 2))
sketch6.addConstraint(Sketcher.Constraint("Tangent", 3, 1, 4, 1))
sketch6.addConstraint(Sketcher.Constraint("Tangent", 4, 2, 5, 2))
sketch6.addConstraint(Sketcher.Constraint("Tangent", 5, 1, 6, 1))
sketch6.addConstraint(Sketcher.Constraint("Tangent", 6, 2, 7, 2))
sketch6.addConstraint(Sketcher.Constraint("Tangent", 7, 1, 0, 1))
sketch6.addConstraint(Sketcher.Constraint("Horizontal", 0))
sketch6.addConstraint(Sketcher.Constraint("Vertical", 2))
sketch6.addConstraint(Sketcher.Constraint("Horizontal", 4))
sketch6.addConstraint(Sketcher.Constraint("Vertical", 6))
sketch6.addConstraint(Sketcher.Constraint("Equal", 1, 3))
sketch6.addConstraint(Sketcher.Constraint("Equal", 3, 5))
sketch6.addConstraint(Sketcher.Constraint("Equal", 5, 7))
sketch6.addConstraint(Sketcher.Constraint("Radius", 1, 0.5))
sketch6.addConstraint(Sketcher.Constraint("DistanceX", 0, 2, 0, 1, 29.0))
sketch6.addConstraint(Sketcher.Constraint("DistanceY", 2, 1, 2, 2, 1.0))
sketch6.addConstraint(Sketcher.Constraint("DistanceX", 1, 3, -1, 1, 14.55))
sketch6.addConstraint(Sketcher.Constraint("DistanceY", -1, 1, 1, 3, 2.453861))
pocket4 = doc.addObject("PartDesign::Pocket", "Pocket003")
body.addObject(pocket4)
pocket4.Profile = sketch6
pocket4.Type = "UpToFirst"
pocket4.Reversed = True

# Sketch on XZ plane
sketch7 = doc.addObject("Sketcher::SketchObject", "Sketch006")
body.addObject(sketch7)
sketch7.AttachmentSupport = (doc.XZ_Plane, [""])
sketch7.MapMode = "FlatFace"
sketch7.AttachmentOffset = App.Placement(V(0, 0, -2.35), App.Rotation())
sketch7.addGeometry(Part.LineSegment(V(-20.35, -3, 0), V(-28, -3, 0)), False)
sketch7.addGeometry(Part.LineSegment(V(-28, -3, 0), V(-28, 3, 0)), False)
sketch7.addGeometry(Part.LineSegment(V(-28, 3, 0), V(-20.35, 3, 0)), False)
sketch7.addGeometry(Part.ArcOfCircle(Part.Circle(V(-20.35, 0, 0), V(0, 0, 1), 3), math.radians(-90), math.radians(90)), False)
sketch7.addGeometry(Part.LineSegment(V(20.35, 3, 0), V(28, 3, 0)), False)
sketch7.addGeometry(Part.LineSegment(V(28, 3, 0), V(28, -3, 0)), False)
sketch7.addGeometry(Part.LineSegment(V(28, -3, 0), V(20.35, -3, 0)), False)
sketch7.addGeometry(Part.ArcOfCircle(Part.Circle(V(20.35, 0, 0), V(0, 0, 1), 3), math.radians(90), math.radians(270)), False)
sketch7.addConstraint(Sketcher.Constraint("Coincident", 0, 2, 1, 1))
sketch7.addConstraint(Sketcher.Constraint("Coincident", 1, 2, 2, 1))
sketch7.addConstraint(Sketcher.Constraint("Tangent", 2, 2, 3, 2))
sketch7.addConstraint(Sketcher.Constraint("Tangent", 3, 1, 0, 1))
sketch7.addConstraint(Sketcher.Constraint("Coincident", 4, 2, 5, 1))
sketch7.addConstraint(Sketcher.Constraint("Coincident", 5, 2, 6, 1))
sketch7.addConstraint(Sketcher.Constraint("Tangent", 6, 2, 7, 2))
sketch7.addConstraint(Sketcher.Constraint("Tangent", 7, 1, 4, 1))
sketch7.addConstraint(Sketcher.Constraint("Horizontal", 0))
sketch7.addConstraint(Sketcher.Constraint("Vertical", 1))
sketch7.addConstraint(Sketcher.Constraint("Horizontal", 2))
sketch7.addConstraint(Sketcher.Constraint("Horizontal", 4))
sketch7.addConstraint(Sketcher.Constraint("Vertical", 5))
sketch7.addConstraint(Sketcher.Constraint("Horizontal", 6))
sketch7.addConstraint(Sketcher.Constraint("Equal", 3, 7))
sketch7.addConstraint(Sketcher.Constraint("Symmetric", 3, 3, 7, 3, -1, 1))
sketch7.addConstraint(Sketcher.Constraint("Symmetric", 1, 2, 4, 2, -2))
sketch7.addConstraint(Sketcher.Constraint("Radius", 3, 3.0))
sketch7.addConstraint(Sketcher.Constraint("DistanceX", 0, 2, -1, 1, 28.0))
sketch7.addConstraint(Sketcher.Constraint("DistanceX", 0, 2, 0, 1, 7.65))
pocket5 = doc.addObject("PartDesign::Pocket", "Pocket004")
body.addObject(pocket5)
pocket5.Profile = sketch7
pocket5.Type = "ThroughAll"
pocket5.Reversed = True

doc.recompute()
